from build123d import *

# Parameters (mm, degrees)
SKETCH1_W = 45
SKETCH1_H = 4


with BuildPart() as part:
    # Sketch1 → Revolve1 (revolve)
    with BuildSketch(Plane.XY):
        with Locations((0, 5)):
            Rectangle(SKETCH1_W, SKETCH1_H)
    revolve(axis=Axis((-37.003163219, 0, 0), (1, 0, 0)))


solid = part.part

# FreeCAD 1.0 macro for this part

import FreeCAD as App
import Part
import Sketcher
from FreeCAD import Vector

doc = App.newDocument("Part")
body = doc.addObject("PartDesign::Body", "Body")

# Sketch on XY plane
sketch1 = body.newObject("Sketcher::SketchObject", "Sketch")
sketch1.AttachmentSupport = (doc.getObject("XY_Plane"), [""])
sketch1.MapMode = "FlatFace"
sketch1.addGeometry([
    Part.LineSegment(Vector(-22.5, 7, 0), Vector(-22.5, 3, 0)),
    Part.LineSegment(Vector(-22.5, 3, 0), Vector(22.5, 3, 0)),
    Part.LineSegment(Vector(22.5, 3, 0), Vector(22.5, 7, 0)),
    Part.LineSegment(Vector(22.5, 7, 0), Vector(-22.5, 7, 0)),
], False)
sketch1.addConstraint([
    Sketcher.Constraint("Coincident", 0, 2, 1, 1),
    Sketcher.Constraint("Coincident", 1, 2, 2, 1),
    Sketcher.Constraint("Coincident", 2, 2, 3, 1),
    Sketcher.Constraint("Coincident", 3, 2, 0, 1),
    Sketcher.Constraint("Vertical", 0),
    Sketcher.Constraint("Horizontal", 1),
    Sketcher.Constraint("Vertical", 2),
    Sketcher.Constraint("Horizontal", 3),
    Sketcher.Constraint("DistanceX", 1, 1, 1, 2, 45.0),
    Sketcher.Constraint("DistanceY", 0, 2, 0, 1, 4.0),
    Sketcher.Constraint("DistanceY", -1, 1, 0, 2, 3.0),
    Sketcher.Constraint("DistanceX", 0, 2, -1, 1, 22.5),
])
revolution = body.newObject("PartDesign::Revolution", "Revolution")
revolution.Profile = sketch1
revolution.ReferenceAxis = (sketch1, ["H_Axis"])
revolution.Angle = 360

doc.recompute()
